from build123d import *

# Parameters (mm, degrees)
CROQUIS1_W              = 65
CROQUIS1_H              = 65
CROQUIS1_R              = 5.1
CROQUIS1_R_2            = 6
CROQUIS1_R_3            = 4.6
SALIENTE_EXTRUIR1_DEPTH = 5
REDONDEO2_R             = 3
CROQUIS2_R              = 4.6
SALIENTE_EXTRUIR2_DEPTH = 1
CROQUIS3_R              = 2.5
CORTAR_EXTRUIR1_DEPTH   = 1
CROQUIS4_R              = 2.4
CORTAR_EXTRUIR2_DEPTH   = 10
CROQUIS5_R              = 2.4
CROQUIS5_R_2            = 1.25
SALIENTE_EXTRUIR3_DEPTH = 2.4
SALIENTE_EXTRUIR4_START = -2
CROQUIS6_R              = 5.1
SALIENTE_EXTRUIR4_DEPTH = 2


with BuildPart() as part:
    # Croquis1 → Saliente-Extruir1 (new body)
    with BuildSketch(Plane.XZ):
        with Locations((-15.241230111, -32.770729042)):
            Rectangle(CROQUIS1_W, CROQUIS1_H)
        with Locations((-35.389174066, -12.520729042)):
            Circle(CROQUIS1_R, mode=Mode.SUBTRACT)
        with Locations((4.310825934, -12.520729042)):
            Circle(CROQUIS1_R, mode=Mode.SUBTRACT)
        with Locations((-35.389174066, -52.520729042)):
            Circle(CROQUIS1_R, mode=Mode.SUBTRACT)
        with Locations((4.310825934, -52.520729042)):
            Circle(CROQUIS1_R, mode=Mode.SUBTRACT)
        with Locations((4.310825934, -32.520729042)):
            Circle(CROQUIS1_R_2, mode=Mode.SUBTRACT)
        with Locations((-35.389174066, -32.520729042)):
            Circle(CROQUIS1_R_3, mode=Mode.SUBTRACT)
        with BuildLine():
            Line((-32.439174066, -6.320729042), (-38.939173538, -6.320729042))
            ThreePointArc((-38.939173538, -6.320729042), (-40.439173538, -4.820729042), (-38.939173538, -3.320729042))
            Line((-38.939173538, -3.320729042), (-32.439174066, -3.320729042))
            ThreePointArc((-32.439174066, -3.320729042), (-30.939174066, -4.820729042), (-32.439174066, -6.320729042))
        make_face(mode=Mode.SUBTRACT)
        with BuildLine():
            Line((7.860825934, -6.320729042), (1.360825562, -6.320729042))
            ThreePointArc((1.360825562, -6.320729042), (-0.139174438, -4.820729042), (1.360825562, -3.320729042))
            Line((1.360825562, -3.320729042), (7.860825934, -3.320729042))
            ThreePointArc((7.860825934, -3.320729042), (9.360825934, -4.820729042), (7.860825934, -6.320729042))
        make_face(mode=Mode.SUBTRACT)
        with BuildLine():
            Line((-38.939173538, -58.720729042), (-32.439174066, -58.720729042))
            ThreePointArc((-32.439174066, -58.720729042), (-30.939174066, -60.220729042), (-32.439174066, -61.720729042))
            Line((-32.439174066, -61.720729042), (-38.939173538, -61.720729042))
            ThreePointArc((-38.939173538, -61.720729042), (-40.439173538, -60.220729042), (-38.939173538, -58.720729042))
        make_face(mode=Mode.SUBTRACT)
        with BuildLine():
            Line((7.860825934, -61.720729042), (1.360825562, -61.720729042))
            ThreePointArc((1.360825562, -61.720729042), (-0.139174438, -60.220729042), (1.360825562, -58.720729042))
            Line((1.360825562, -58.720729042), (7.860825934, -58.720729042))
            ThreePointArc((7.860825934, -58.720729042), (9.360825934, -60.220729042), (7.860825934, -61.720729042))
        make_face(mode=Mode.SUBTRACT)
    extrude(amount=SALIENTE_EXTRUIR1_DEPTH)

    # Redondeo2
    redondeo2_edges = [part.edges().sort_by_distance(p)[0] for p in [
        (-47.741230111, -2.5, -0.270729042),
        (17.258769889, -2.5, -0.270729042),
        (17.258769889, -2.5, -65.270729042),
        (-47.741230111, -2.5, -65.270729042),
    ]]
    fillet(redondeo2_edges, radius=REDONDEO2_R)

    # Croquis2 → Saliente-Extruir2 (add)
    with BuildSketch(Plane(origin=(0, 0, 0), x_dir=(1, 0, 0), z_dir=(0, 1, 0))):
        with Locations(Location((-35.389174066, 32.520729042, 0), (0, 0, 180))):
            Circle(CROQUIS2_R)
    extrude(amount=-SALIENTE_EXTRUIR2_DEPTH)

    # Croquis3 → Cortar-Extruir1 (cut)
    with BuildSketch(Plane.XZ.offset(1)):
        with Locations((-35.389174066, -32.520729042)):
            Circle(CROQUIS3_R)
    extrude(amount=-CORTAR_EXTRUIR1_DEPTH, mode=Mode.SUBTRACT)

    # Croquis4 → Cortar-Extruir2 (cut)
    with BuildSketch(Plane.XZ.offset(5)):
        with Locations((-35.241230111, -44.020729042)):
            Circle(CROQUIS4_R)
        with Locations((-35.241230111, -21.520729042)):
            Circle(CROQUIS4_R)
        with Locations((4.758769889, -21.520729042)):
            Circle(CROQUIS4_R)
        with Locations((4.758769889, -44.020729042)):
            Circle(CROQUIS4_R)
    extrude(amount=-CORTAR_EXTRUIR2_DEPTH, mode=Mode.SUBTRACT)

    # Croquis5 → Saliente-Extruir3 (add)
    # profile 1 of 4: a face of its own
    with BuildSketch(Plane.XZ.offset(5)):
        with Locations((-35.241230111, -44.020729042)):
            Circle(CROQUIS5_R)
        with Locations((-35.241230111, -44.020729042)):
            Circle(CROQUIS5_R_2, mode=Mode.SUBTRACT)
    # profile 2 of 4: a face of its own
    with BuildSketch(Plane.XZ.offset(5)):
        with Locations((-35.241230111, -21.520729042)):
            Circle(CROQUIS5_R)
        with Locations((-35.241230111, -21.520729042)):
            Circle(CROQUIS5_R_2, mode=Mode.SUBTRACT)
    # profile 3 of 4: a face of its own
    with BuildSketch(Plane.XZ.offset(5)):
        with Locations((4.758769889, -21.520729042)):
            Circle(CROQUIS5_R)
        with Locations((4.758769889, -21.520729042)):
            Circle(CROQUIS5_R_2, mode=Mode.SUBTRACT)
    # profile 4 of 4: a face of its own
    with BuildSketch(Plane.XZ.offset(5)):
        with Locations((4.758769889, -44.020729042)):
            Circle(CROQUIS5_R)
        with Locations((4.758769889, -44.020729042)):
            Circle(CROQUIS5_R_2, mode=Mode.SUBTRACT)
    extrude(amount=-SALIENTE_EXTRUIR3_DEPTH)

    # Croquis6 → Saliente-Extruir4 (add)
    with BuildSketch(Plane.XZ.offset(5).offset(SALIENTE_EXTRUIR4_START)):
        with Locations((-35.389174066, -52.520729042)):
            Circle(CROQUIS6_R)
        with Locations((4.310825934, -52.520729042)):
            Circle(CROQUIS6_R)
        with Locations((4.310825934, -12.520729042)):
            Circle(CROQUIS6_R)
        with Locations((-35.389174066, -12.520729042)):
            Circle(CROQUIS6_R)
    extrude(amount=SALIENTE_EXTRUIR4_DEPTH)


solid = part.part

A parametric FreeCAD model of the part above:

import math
import FreeCAD as App
import Part
import Sketcher
from FreeCAD import Vector


def edges_at(feature, points):
    """Names of the edges that pass closest to the given points."""
    edges = feature.Shape.Edges
    near = lambda p: min(range(len(edges)), key=lambda i: edges[i].distToShape(Part.Vertex(*p))[0])
    return sorted({f"Edge{near(p) + 1}" for p in points})

doc = App.newDocument("Part")
body = doc.addObject("PartDesign::Body", "Body")

sketch1 = body.newObject("Sketcher::SketchObject", "Sketch")
sketch1.AttachmentSupport = (doc.getObject("XZ_Plane"), [""])
sketch1.MapMode = "FlatFace"
sketch1.addGeometry(Part.LineSegment(Vector(-47.7, -0.3, 0), Vector(-47.7, -65.3, 0)), False)
sketch1.addGeometry(Part.LineSegment(Vector(-47.7, -65.3, 0), Vector(17.3, -65.3, 0)), False)
sketch1.addGeometry(Part.LineSegment(Vector(17.3, -65.3, 0), Vector(17.3, -0.3, 0)), False)
sketch1.addGeometry(Part.LineSegment(Vector(17.3, -0.3, 0), Vector(-47.7, -0.3, 0)), False)
sketch1.addGeometry(Part.ArcOfCircle(Part.Circle(Vector(-38.9, -60.2, 0), Vector(0, 0, 1), 1.5), math.radians(90), math.radians(270)), False)
sketch1.addGeometry(Part.LineSegment(Vector(-38.9, -58.7, 0), Vector(-32.4, -58.7, 0)), False)
sketch1.addGeometry(Part.ArcOfCircle(Part.Circle(Vector(-32.4, -60.2, 0), Vector(0, 0, 1), 1.5), math.radians(-90), math.radians(90)), False)
sketch1.addGeometry(Part.LineSegment(Vector(-32.4, -61.7, 0), Vector(-38.9, -61.7, 0)), False)
sketch1.addGeometry(Part.Circle(Vector(-35.4, -52.5, 0), Vector(0, 0, 1), 5.1), False)
sketch1.addGeometry(Part.ArcOfCircle(Part.Circle(Vector(7.9, -60.2, 0), Vector(0, 0, 1), 1.5), math.radians(-90), math.radians(90)), False)
sketch1.addGeometry(Part.LineSegment(Vector(7.9, -61.7, 0), Vector(1.4, -61.7, 0)), False)
sketch1.addGeometry(Part.ArcOfCircle(Part.Circle(Vector(1.4, -60.2, 0), Vector(0, 0, 1), 1.5), math.radians(90), math.radians(270)), False)
sketch1.addGeometry(Part.LineSegment(Vector(1.4, -58.7, 0), Vector(7.9, -58.7, 0)), False)
sketch1.addGeometry(Part.Circle(Vector(4.3, -52.5, 0), Vector(0, 0, 1), 5.1), False)
sketch1.addGeometry(Part.Circle(Vector(-35.4, -32.5, 0), Vector(0, 0, 1), 4.6), False)
sketch1.addGeometry(Part.Circle(Vector(-35.4, -12.5, 0), Vector(0, 0, 1), 5.1), False)
sketch1.addGeometry(Part.ArcOfCircle(Part.Circle(Vector(-32.4, -4.8, 0), Vector(0, 0, 1), 1.5), math.radians(-90), math.radians(90)), False)
sketch1.addGeometry(Part.LineSegment(Vector(-32.4, -6.3, 0), Vector(-38.9, -6.3, 0)), False)
sketch1.addGeometry(Part.ArcOfCircle(Part.Circle(Vector(-38.9, -4.8, 0), Vector(0, 0, 1), 1.5), math.radians(90), math.radians(270)), False)
sketch1.addGeometry(Part.LineSegment(Vector(-38.9, -3.3, 0), Vector(-32.4, -3.3, 0)), False)
sketch1.addGeometry(Part.Circle(Vector(4.3, -32.5, 0), Vector(0, 0, 1), 6), False)
sketch1.addGeometry(Part.Circle(Vector(4.3, -12.5, 0), Vector(0, 0, 1), 5.1), False)
sketch1.addGeometry(Part.ArcOfCircle(Part.Circle(Vector(7.9, -4.8, 0), Vector(0, 0, 1), 1.5), math.radians(-90), math.radians(90)), False)
sketch1.addGeometry(Part.LineSegment(Vector(7.9, -6.3, 0), Vector(1.4, -6.3, 0)), False)
sketch1.addGeometry(Part.ArcOfCircle(Part.Circle(Vector(1.4, -4.8, 0), Vector(0, 0, 1), 1.5), math.radians(90), math.radians(270)), False)
sketch1.addGeometry(Part.LineSegment(Vector(1.4, -3.3, 0), Vector(7.9, -3.3, 0)), False)
sketch1.addConstraint(Sketcher.Constraint("Coincident", 0, 2, 1, 1))
sketch1.addConstraint(Sketcher.Constraint("Coincident", 1, 2, 2, 1))
sketch1.addConstraint(Sketcher.Constraint("Coincident", 2, 2, 3, 1))
sketch1.addConstraint(Sketcher.Constraint("Coincident", 3, 2, 0, 1))
sketch1.addConstraint(Sketcher.Constraint("Tangent", 4, 1, 5, 1))
sketch1.addConstraint(Sketcher.Constraint("Tangent", 5, 2, 6, 2))
sketch1.addConstraint(Sketcher.Constraint("Tangent", 6, 1, 7, 1))
sketch1.addConstraint(Sketcher.Constraint("Tangent", 7, 2, 4, 2))
sketch1.addConstraint(Sketcher.Constraint("Tangent", 9, 1, 10, 1))
sketch1.addConstraint(Sketcher.Constraint("Tangent", 10, 2, 11, 2))
sketch1.addConstraint(Sketcher.Constraint("Tangent", 11, 1, 12, 1))
sketch1.addConstraint(Sketcher.Constraint("Tangent", 12, 2, 9, 2))
sketch1.addConstraint(Sketcher.Constraint("Tangent", 16, 1, 17, 1))
sketch1.addConstraint(Sketcher.Constraint("Tangent", 17, 2, 18, 2))
sketch1.addConstraint(Sketcher.Constraint("Tangent", 18, 1, 19, 1))
sketch1.addConstraint(Sketcher.Constraint("Tangent", 19, 2, 16, 2))
sketch1.addConstraint(Sketcher.Constraint("Tangent", 22, 1, 23, 1))
sketch1.addConstraint(Sketcher.Constraint("Tangent", 23, 2, 24, 2))
sketch1.addConstraint(Sketcher.Constraint("Tangent", 24, 1, 25, 1))
sketch1.addConstraint(Sketcher.Constraint("Tangent", 25, 2, 22, 2))
sketch1.addConstraint(Sketcher.Constraint("Vertical", 0))
sketch1.addConstraint(Sketcher.Constraint("Horizontal", 1))
sketch1.addConstraint(Sketcher.Constraint("Vertical", 2))
sketch1.addConstraint(Sketcher.Constraint("Horizontal", 3))
sketch1.addConstraint(Sketcher.Constraint("Horizontal", 5))
sketch1.addConstraint(Sketcher.Constraint("Horizontal", 7))
sketch1.addConstraint(Sketcher.Constraint("Horizontal", 10))
sketch1.addConstraint(Sketcher.Constraint("Horizontal", 12))
sketch1.addConstraint(Sketcher.Constraint("Horizontal", 17))
sketch1.addConstraint(Sketcher.Constraint("Horizontal", 19))
sketch1.addConstraint(Sketcher.Constraint("Horizontal", 23))
sketch1.addConstraint(Sketcher.Constraint("Horizontal", 25))
sketch1.addConstraint(Sketcher.Constraint("Equal", 6, 9))
sketch1.addConstraint(Sketcher.Constraint("Equal", 8, 13))
sketch1.addConstraint(Sketcher.Constraint("Equal", 13, 15))
sketch1.addConstraint(Sketcher.Constraint("Equal", 11, 16))
sketch1.addConstraint(Sketcher.Constraint("Equal", 15, 21))
sketch1.addConstraint(Sketcher.Constraint("Equal", 18, 22))
sketch1.addConstraint(Sketcher.Constraint("Horizontal", 6, 3, 9, 3))
sketch1.addConstraint(Sketcher.Constraint("Horizontal", 8, 3, 13, 3))
sketch1.addConstraint(Sketcher.Constraint("Horizontal", 14, 3, 20, 3))
sketch1.addConstraint(Sketcher.Constraint("Horizontal", 15, 3, 21, 3))
sketch1.addConstraint(Sketcher.Constraint("Horizontal", 18, 3, 22, 3))
sketch1.addConstraint(Sketcher.Constraint("Vertical", 8, 3, 14, 3))
sketch1.addConstraint(Sketcher.Constraint("Vertical", 14, 3, 15, 3))
sketch1.addConstraint(Sketcher.Constraint("Vertical", 6, 3, 16, 3))
sketch1.addConstraint(Sketcher.Constraint("Vertical", 4, 3, 18, 3))
sketch1.addConstraint(Sketcher.Constraint("Vertical", 13, 3, 20, 3))
sketch1.addConstraint(Sketcher.Constraint("Vertical", 20, 3, 21, 3))
sketch1.addConstraint(Sketcher.Constraint("Vertical", 9, 3, 22, 3))
sketch1.addConstraint(Sketcher.Constraint("Vertical", 11, 3, 24, 3))
sketch1.addConstraint(Sketcher.Constraint("Equal", 7, 10))
sketch1.addConstraint(Sketcher.Constraint("Equal", 3, 0))
sketch1.addConstraint(Sketcher.Constraint("Diameter", 20, 12.0))
sketch1.addConstraint(Sketcher.Constraint("Diameter", 8, 10.2))
sketch1.addConstraint(Sketcher.Constraint("Diameter", 14, 9.2))
sketch1.addConstraint(Sketcher.Constraint("Radius", 4, 1.5))
sketch1.addConstraint(Sketcher.Constraint("DistanceX", 1, 1, 1, 2, 65.0))
sketch1.addConstraint(Sketcher.Constraint("DistanceX", 5, 1, 5, 2, 6.499999))
sketch1.addConstraint(Sketcher.Constraint("DistanceY", 8, 3, 14, 3, 20.0))
sketch1.addConstraint(Sketcher.Constraint("DistanceY", 14, 3, 15, 3, 20.0))
sketch1.addConstraint(Sketcher.Constraint("DistanceY", 6, 3, 8, 3, 7.7))
sketch1.addConstraint(Sketcher.Constraint("DistanceX", 6, 3, 9, 3, 40.3))
sketch1.addConstraint(Sketcher.Constraint("DistanceX", 8, 3, 13, 3, 39.7))
sketch1.addConstraint(Sketcher.Constraint("DistanceY", 15, 3, 16, 3, 7.7))
sketch1.addConstraint(Sketcher.Constraint("DistanceX", 8, 3, 6, 3, 2.95))
sketch1.addConstraint(Sketcher.Constraint("DistanceY", 0, 2, 4, 3, 5.05))
sketch1.addConstraint(Sketcher.Constraint("DistanceY", 4, 3, -1, 1, 60.220729))
sketch1.addConstraint(Sketcher.Constraint("DistanceX", 0, 2, -1, 1, 47.74123))
sketch1.addConstraint(Sketcher.Constraint("DistanceX", 4, 3, -1, 1, 38.939174))
pad1 = body.newObject("PartDesign::Pad", "Pad")
pad1.Profile = sketch1
pad1.Length = 5
doc.recompute()

fillet = body.newObject("PartDesign::Fillet", "Fillet")
fillet.Base = (pad1, edges_at(pad1, [
    (-47.741, -2.5, -0.271),
    (17.259, -2.5, -0.271),
    (17.259, -2.5, -65.271),
    (-47.741, -2.5, -65.271),
]))
fillet.Radius = 3

sketch2 = body.newObject("Sketcher::SketchObject", "Sketch001")
sketch2.AttachmentSupport = (doc.getObject("XZ_Plane"), [""])
sketch2.MapMode = "FlatFace"
sketch2.addGeometry(Part.Circle(Vector(-35.4, -32.5, 0), Vector(0, 0, 1), 4.6), False)
sketch2.addConstraint(Sketcher.Constraint("Diameter", 0, 9.2))
sketch2.addConstraint(Sketcher.Constraint("DistanceY", 0, 3, -1, 1, 32.520729))
sketch2.addConstraint(Sketcher.Constraint("DistanceX", 0, 3, -1, 1, 35.389174))
pad2 = body.newObject("PartDesign::Pad", "Pad001")
pad2.Profile = sketch2
pad2.Length = 1

sketch3 = body.newObject("Sketcher::SketchObject", "Sketch002")
sketch3.AttachmentSupport = (doc.getObject("XZ_Plane"), [""])
sketch3.MapMode = "FlatFace"
sketch3.AttachmentOffset = App.Placement(Vector(0, 0, 1), App.Rotation())
sketch3.addGeometry(Part.Circle(Vector(-35.4, -32.5, 0), Vector(0, 0, 1), 2.5), False)
sketch3.addConstraint(Sketcher.Constraint("Diameter", 0, 5.0))
sketch3.addConstraint(Sketcher.Constraint("DistanceY", 0, 3, -1, 1, 32.520729))
sketch3.addConstraint(Sketcher.Constraint("DistanceX", 0, 3, -1, 1, 35.389174))
pocket1 = body.newObject("PartDesign::Pocket", "Pocket")
pocket1.Profile = sketch3
pocket1.Length = 1

sketch4 = body.newObject("Sketcher::SketchObject", "Sketch003")
sketch4.AttachmentSupport = (doc.getObject("XZ_Plane"), [""])
sketch4.MapMode = "FlatFace"
sketch4.AttachmentOffset = App.Placement(Vector(0, 0, 5), App.Rotation())
sketch4.addGeometry(Part.Circle(Vector(-35.2, -44, 0), Vector(0, 0, 1), 2.4), False)
sketch4.addGeometry(Part.Circle(Vector(-35.2, -21.5, 0), Vector(0, 0, 1), 2.4), False)
sketch4.addGeometry(Part.Circle(Vector(4.8, -21.5, 0), Vector(0, 0, 1), 2.4), False)
sketch4.addGeometry(Part.Circle(Vector(4.8, -44, 0), Vector(0, 0, 1), 2.4), False)
sketch4.addConstraint(Sketcher.Constraint("Equal", 0, 1))
sketch4.addConstraint(Sketcher.Constraint("Equal", 1, 2))
sketch4.addConstraint(Sketcher.Constraint("Equal", 2, 3))
sketch4.addConstraint(Sketcher.Constraint("Horizontal", 1, 3, 2, 3))
sketch4.addConstraint(Sketcher.Constraint("Horizontal", 0, 3, 3, 3))
sketch4.addConstraint(Sketcher.Constraint("Vertical", 0, 3, 1, 3))
sketch4.addConstraint(Sketcher.Constraint("Vertical", 2, 3, 3, 3))
sketch4.addConstraint(Sketcher.Constraint("Diameter", 0, 4.8))
sketch4.addConstraint(Sketcher.Constraint("DistanceX", 1, 3, 2, 3, 40.0))
sketch4.addConstraint(Sketcher.Constraint("DistanceY", 0, 3, 1, 3, 22.5))
sketch4.addConstraint(Sketcher.Constraint("DistanceX", 0, 3, -1, 1, 35.24123))
sketch4.addConstraint(Sketcher.Constraint("DistanceY", 0, 3, -1, 1, 44.020729))
pocket2 = body.newObject("PartDesign::Pocket", "Pocket001")
pocket2.Profile = sketch4
pocket2.Length = 10

sketch5 = body.newObject("Sketcher::SketchObject", "Sketch004")
sketch5.AttachmentSupport = (doc.getObject("XZ_Plane"), [""])
sketch5.MapMode = "FlatFace"
sketch5.AttachmentOffset = App.Placement(Vector(0, 0, 5), App.Rotation())
sketch5.addGeometry(Part.Circle(Vector(-35.2, -44, 0), Vector(0, 0, 1), 2.4), False)
sketch5.addGeometry(Part.Circle(Vector(-35.2, -44, 0), Vector(0, 0, 1), 1.2), False)
sketch5.addGeometry(Part.Circle(Vector(-35.2, -21.5, 0), Vector(0, 0, 1), 2.4), False)
sketch5.addGeometry(Part.Circle(Vector(-35.2, -21.5, 0), Vector(0, 0, 1), 1.2), False)
sketch5.addGeometry(Part.Circle(Vector(4.8, -21.5, 0), Vector(0, 0, 1), 2.4), False)
sketch5.addGeometry(Part.Circle(Vector(4.8, -21.5, 0), Vector(0, 0, 1), 1.2), False)
sketch5.addGeometry(Part.Circle(Vector(4.8, -44, 0), Vector(0, 0, 1), 2.4), False)
sketch5.addGeometry(Part.Circle(Vector(4.8, -44, 0), Vector(0, 0, 1), 1.2), False)
sketch5.addConstraint(Sketcher.Constraint("Coincident", 1, 3, 0, 3))
sketch5.addConstraint(Sketcher.Constraint("Coincident", 3, 3, 2, 3))
sketch5.addConstraint(Sketcher.Constraint("Coincident", 5, 3, 4, 3))
sketch5.addConstraint(Sketcher.Constraint("Coincident", 7, 3, 6, 3))
sketch5.addConstraint(Sketcher.Constraint("Equal", 0, 2))
sketch5.addConstraint(Sketcher.Constraint("Equal", 1, 3))
sketch5.addConstraint(Sketcher.Constraint("Equal", 2, 4))
sketch5.addConstraint(Sketcher.Constraint("Equal", 3, 5))
sketch5.addConstraint(Sketcher.Constraint("Equal", 4, 6))
sketch5.addConstraint(Sketcher.Constraint("Equal", 5, 7))
sketch5.addConstraint(Sketcher.Constraint("Horizontal", 3, 3, 4, 3))
sketch5.addConstraint(Sketcher.Constraint("Horizontal", 1, 3, 6, 3))
sketch5.addConstraint(Sketcher.Constraint("Vertical", 1, 3, 2, 3))
sketch5.addConstraint(Sketcher.Constraint("Vertical", 5, 3, 6, 3))
sketch5.addConstraint(Sketcher.Constraint("Diameter", 0, 4.8))
sketch5.addConstraint(Sketcher.Constraint("Diameter", 1, 2.5))
sketch5.addConstraint(Sketcher.Constraint("DistanceX", 2, 3, 4, 3, 40.0))
sketch5.addConstraint(Sketcher.Constraint("DistanceY", 0, 3, 2, 3, 22.5))
sketch5.addConstraint(Sketcher.Constraint("DistanceX", 0, 3, -1, 1, 35.24123))
sketch5.addConstraint(Sketcher.Constraint("DistanceY", 0, 3, -1, 1, 44.020729))
pad3 = body.newObject("PartDesign::Pad", "Pad002")
pad3.Profile = sketch5
pad3.Length = 2.4
pad3.Reversed = True

sketch6 = body.newObject("Sketcher::SketchObject", "Sketch005")
sketch6.AttachmentSupport = (doc.getObject("XZ_Plane"), [""])
sketch6.MapMode = "FlatFace"
sketch6.AttachmentOffset = App.Placement(Vector(0, 0, 3), App.Rotation())
sketch6.addGeometry(Part.Circle(Vector(-35, -53, 0), Vector(0, 0, 1), 5), False)
sketch6.addGeometry(Part.Circle(Vector(4, -53, 0), Vector(0, 0, 1), 5), False)
sketch6.addGeometry(Part.Circle(Vector(4, -13, 0), Vector(0, 0, 1), 5), False)
sketch6.addGeometry(Part.Circle(Vector(-35, -13, 0), Vector(0, 0, 1), 5), False)
sketch6.addConstraint(Sketcher.Constraint("Equal", 0, 1))
sketch6.addConstraint(Sketcher.Constraint("Equal", 1, 2))
sketch6.addConstraint(Sketcher.Constraint("Equal", 2, 3))
sketch6.addConstraint(Sketcher.Constraint("Horizontal", 0, 3, 1, 3))
sketch6.addConstraint(Sketcher.Constraint("Horizontal", 2, 3, 3, 3))
sketch6.addConstraint(Sketcher.Constraint("Vertical", 1, 3, 2, 3))
sketch6.addConstraint(Sketcher.Constraint("Vertical", 0, 3, 3, 3))
sketch6.addConstraint(Sketcher.Constraint("Diameter", 0, 10.2))
sketch6.addConstraint(Sketcher.Constraint("DistanceY", 1, 3, 2, 3, 40.0))
sketch6.addConstraint(Sketcher.Constraint("DistanceX", 0, 3, 1, 3, 39.7))
sketch6.addConstraint(Sketcher.Constraint("DistanceY", 0, 3, -1, 1, 52.520729))
sketch6.addConstraint(Sketcher.Constraint("DistanceX", 0, 3, -1, 1, 35.389174))
pad4 = body.newObject("PartDesign::Pad", "Pad003")
pad4.Profile = sketch6
pad4.Length = 2

doc.recompute()
